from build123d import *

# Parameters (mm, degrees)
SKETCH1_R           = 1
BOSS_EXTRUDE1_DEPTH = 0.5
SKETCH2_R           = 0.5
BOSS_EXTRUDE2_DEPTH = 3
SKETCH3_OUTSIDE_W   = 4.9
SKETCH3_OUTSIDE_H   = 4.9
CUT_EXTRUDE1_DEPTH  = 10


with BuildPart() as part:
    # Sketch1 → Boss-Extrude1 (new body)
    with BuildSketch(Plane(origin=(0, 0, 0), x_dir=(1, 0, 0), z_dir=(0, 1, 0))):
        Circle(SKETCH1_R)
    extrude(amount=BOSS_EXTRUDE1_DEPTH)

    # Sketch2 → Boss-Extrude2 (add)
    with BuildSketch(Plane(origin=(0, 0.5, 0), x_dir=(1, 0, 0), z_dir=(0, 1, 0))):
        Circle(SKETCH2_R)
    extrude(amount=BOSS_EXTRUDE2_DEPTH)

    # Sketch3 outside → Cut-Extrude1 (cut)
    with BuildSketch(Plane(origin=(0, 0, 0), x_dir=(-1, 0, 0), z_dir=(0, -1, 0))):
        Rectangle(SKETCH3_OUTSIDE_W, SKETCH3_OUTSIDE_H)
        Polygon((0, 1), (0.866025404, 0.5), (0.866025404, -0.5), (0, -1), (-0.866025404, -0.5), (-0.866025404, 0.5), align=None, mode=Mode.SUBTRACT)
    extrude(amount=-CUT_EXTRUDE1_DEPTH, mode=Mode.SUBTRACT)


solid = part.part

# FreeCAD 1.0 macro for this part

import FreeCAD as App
import Part
import Sketcher
from FreeCAD import Vector
Q = App.Units.Quantity


def add_polygon(sketch, points):
    """Adds a closed chain of lines whose ends are joined by coincident constraints."""
    first, n = sketch.GeometryCount, len(points)
    for a, b in zip(points, points[1:] + points[:1]):
        sketch.addGeometry(Part.LineSegment(App.Vector(*a, 0), App.Vector(*b, 0)), False)
    for i in range(n):
        sketch.addConstraint(Sketcher.Constraint("Coincident", first + i, 2, first + (i + 1) % n, 1))

doc = App.newDocument("Part")
body = doc.addObject("PartDesign::Body", "Body")

# Sketch on XZ plane
sketch1 = doc.addObject("Sketcher::SketchObject", "Sketch")
body.addObject(sketch1)
sketch1.AttachmentSupport = (doc.XZ_Plane, [""])
sketch1.MapMode = "FlatFace"
sketch1.addGeometry(Part.Circle(Vector(0, 0, 0), Vector(0, 0, 1), 1), False)
sketch1.addConstraint([
    Sketcher.Constraint("Coincident", 0, 3, -1, 1),
    Sketcher.Constraint("Diameter", 0, Q("2 mm")),
])
pad1 = doc.addObject("PartDesign::Pad", "Pad")
body.addObject(pad1)
pad1.Profile = sketch1
pad1.Length = 0.5
pad1.Reversed = True

# Sketch on XZ plane
sketch2 = doc.addObject("Sketcher::SketchObject", "Sketch001")
body.addObject(sketch2)
sketch2.AttachmentSupport = (doc.XZ_Plane, [""])
sketch2.MapMode = "FlatFace"
sketch2.AttachmentOffset = App.Placement(Vector(0, 0, -0.5), App.Rotation())
sketch2.addGeometry(Part.Circle(Vector(0, 0, 0), Vector(0, 0, 1), 0.5), False)
sketch2.addConstraint([
    Sketcher.Constraint("Coincident", 0, 3, -1, 1),
    Sketcher.Constraint("Diameter", 0, Q("1 mm")),
])
pad2 = doc.addObject("PartDesign::Pad", "Pad001")
body.addObject(pad2)
pad2.Profile = sketch2
pad2.Length = 3
pad2.Reversed = True

# Sketch on XZ plane
sketch3 = doc.addObject("Sketcher::SketchObject", "Sketch002")
body.addObject(sketch3)
sketch3.AttachmentSupport = (doc.XZ_Plane, [""])
sketch3.MapMode = "FlatFace"
add_polygon(sketch3, [(2.45, -2.45), (2.45, 2.45), (-2.45, 2.45), (-2.45, -2.45)])  # lines 0-3
add_polygon(sketch3, [(0.866025, -0.5), (0, -1), (-0.866025, -0.5), (-0.866025, 0.5), (0, 1), (0.866025, 0.5)])  # lines 4-9
sketch3.addConstraint([
    Sketcher.Constraint("Vertical", 0),
    Sketcher.Constraint("Horizontal", 1),
    Sketcher.Constraint("Vertical", 2),
    Sketcher.Constraint("Horizontal", 3),
    Sketcher.Constraint("Vertical", 6),
    Sketcher.Constraint("Vertical", 9),
    Sketcher.Constraint("Symmetric", 0, 2, 2, 2, -1, 1),
    Sketcher.Constraint("Symmetric", 4, 2, 7, 2, -1, 1),
    Sketcher.Constraint("Symmetric", 5, 2, 8, 2, -1, 1),
    Sketcher.Constraint("PointOnObject", 4, 2, -2),
    Sketcher.Constraint("Parallel", 4, 7),
    Sketcher.Constraint("Horizontal", 6, 2, 8, 2),
    Sketcher.Constraint("Equal", 3, 0),
    Sketcher.Constraint("DistanceY", 6, 1, 6, 2, Q("1 mm")),
    Sketcher.Constraint("Angle", 4, Q("-150 deg")),
    Sketcher.Constraint("Distance", 4, Q("1 mm")),
    Sketcher.Constraint("DistanceX", 1, 2, 1, 1, Q("4.9 mm")),
])
pocket1 = doc.addObject("PartDesign::Pocket", "Pocket")
body.addObject(pocket1)
pocket1.Profile = sketch3
pocket1.Length = 10

doc.recompute()
